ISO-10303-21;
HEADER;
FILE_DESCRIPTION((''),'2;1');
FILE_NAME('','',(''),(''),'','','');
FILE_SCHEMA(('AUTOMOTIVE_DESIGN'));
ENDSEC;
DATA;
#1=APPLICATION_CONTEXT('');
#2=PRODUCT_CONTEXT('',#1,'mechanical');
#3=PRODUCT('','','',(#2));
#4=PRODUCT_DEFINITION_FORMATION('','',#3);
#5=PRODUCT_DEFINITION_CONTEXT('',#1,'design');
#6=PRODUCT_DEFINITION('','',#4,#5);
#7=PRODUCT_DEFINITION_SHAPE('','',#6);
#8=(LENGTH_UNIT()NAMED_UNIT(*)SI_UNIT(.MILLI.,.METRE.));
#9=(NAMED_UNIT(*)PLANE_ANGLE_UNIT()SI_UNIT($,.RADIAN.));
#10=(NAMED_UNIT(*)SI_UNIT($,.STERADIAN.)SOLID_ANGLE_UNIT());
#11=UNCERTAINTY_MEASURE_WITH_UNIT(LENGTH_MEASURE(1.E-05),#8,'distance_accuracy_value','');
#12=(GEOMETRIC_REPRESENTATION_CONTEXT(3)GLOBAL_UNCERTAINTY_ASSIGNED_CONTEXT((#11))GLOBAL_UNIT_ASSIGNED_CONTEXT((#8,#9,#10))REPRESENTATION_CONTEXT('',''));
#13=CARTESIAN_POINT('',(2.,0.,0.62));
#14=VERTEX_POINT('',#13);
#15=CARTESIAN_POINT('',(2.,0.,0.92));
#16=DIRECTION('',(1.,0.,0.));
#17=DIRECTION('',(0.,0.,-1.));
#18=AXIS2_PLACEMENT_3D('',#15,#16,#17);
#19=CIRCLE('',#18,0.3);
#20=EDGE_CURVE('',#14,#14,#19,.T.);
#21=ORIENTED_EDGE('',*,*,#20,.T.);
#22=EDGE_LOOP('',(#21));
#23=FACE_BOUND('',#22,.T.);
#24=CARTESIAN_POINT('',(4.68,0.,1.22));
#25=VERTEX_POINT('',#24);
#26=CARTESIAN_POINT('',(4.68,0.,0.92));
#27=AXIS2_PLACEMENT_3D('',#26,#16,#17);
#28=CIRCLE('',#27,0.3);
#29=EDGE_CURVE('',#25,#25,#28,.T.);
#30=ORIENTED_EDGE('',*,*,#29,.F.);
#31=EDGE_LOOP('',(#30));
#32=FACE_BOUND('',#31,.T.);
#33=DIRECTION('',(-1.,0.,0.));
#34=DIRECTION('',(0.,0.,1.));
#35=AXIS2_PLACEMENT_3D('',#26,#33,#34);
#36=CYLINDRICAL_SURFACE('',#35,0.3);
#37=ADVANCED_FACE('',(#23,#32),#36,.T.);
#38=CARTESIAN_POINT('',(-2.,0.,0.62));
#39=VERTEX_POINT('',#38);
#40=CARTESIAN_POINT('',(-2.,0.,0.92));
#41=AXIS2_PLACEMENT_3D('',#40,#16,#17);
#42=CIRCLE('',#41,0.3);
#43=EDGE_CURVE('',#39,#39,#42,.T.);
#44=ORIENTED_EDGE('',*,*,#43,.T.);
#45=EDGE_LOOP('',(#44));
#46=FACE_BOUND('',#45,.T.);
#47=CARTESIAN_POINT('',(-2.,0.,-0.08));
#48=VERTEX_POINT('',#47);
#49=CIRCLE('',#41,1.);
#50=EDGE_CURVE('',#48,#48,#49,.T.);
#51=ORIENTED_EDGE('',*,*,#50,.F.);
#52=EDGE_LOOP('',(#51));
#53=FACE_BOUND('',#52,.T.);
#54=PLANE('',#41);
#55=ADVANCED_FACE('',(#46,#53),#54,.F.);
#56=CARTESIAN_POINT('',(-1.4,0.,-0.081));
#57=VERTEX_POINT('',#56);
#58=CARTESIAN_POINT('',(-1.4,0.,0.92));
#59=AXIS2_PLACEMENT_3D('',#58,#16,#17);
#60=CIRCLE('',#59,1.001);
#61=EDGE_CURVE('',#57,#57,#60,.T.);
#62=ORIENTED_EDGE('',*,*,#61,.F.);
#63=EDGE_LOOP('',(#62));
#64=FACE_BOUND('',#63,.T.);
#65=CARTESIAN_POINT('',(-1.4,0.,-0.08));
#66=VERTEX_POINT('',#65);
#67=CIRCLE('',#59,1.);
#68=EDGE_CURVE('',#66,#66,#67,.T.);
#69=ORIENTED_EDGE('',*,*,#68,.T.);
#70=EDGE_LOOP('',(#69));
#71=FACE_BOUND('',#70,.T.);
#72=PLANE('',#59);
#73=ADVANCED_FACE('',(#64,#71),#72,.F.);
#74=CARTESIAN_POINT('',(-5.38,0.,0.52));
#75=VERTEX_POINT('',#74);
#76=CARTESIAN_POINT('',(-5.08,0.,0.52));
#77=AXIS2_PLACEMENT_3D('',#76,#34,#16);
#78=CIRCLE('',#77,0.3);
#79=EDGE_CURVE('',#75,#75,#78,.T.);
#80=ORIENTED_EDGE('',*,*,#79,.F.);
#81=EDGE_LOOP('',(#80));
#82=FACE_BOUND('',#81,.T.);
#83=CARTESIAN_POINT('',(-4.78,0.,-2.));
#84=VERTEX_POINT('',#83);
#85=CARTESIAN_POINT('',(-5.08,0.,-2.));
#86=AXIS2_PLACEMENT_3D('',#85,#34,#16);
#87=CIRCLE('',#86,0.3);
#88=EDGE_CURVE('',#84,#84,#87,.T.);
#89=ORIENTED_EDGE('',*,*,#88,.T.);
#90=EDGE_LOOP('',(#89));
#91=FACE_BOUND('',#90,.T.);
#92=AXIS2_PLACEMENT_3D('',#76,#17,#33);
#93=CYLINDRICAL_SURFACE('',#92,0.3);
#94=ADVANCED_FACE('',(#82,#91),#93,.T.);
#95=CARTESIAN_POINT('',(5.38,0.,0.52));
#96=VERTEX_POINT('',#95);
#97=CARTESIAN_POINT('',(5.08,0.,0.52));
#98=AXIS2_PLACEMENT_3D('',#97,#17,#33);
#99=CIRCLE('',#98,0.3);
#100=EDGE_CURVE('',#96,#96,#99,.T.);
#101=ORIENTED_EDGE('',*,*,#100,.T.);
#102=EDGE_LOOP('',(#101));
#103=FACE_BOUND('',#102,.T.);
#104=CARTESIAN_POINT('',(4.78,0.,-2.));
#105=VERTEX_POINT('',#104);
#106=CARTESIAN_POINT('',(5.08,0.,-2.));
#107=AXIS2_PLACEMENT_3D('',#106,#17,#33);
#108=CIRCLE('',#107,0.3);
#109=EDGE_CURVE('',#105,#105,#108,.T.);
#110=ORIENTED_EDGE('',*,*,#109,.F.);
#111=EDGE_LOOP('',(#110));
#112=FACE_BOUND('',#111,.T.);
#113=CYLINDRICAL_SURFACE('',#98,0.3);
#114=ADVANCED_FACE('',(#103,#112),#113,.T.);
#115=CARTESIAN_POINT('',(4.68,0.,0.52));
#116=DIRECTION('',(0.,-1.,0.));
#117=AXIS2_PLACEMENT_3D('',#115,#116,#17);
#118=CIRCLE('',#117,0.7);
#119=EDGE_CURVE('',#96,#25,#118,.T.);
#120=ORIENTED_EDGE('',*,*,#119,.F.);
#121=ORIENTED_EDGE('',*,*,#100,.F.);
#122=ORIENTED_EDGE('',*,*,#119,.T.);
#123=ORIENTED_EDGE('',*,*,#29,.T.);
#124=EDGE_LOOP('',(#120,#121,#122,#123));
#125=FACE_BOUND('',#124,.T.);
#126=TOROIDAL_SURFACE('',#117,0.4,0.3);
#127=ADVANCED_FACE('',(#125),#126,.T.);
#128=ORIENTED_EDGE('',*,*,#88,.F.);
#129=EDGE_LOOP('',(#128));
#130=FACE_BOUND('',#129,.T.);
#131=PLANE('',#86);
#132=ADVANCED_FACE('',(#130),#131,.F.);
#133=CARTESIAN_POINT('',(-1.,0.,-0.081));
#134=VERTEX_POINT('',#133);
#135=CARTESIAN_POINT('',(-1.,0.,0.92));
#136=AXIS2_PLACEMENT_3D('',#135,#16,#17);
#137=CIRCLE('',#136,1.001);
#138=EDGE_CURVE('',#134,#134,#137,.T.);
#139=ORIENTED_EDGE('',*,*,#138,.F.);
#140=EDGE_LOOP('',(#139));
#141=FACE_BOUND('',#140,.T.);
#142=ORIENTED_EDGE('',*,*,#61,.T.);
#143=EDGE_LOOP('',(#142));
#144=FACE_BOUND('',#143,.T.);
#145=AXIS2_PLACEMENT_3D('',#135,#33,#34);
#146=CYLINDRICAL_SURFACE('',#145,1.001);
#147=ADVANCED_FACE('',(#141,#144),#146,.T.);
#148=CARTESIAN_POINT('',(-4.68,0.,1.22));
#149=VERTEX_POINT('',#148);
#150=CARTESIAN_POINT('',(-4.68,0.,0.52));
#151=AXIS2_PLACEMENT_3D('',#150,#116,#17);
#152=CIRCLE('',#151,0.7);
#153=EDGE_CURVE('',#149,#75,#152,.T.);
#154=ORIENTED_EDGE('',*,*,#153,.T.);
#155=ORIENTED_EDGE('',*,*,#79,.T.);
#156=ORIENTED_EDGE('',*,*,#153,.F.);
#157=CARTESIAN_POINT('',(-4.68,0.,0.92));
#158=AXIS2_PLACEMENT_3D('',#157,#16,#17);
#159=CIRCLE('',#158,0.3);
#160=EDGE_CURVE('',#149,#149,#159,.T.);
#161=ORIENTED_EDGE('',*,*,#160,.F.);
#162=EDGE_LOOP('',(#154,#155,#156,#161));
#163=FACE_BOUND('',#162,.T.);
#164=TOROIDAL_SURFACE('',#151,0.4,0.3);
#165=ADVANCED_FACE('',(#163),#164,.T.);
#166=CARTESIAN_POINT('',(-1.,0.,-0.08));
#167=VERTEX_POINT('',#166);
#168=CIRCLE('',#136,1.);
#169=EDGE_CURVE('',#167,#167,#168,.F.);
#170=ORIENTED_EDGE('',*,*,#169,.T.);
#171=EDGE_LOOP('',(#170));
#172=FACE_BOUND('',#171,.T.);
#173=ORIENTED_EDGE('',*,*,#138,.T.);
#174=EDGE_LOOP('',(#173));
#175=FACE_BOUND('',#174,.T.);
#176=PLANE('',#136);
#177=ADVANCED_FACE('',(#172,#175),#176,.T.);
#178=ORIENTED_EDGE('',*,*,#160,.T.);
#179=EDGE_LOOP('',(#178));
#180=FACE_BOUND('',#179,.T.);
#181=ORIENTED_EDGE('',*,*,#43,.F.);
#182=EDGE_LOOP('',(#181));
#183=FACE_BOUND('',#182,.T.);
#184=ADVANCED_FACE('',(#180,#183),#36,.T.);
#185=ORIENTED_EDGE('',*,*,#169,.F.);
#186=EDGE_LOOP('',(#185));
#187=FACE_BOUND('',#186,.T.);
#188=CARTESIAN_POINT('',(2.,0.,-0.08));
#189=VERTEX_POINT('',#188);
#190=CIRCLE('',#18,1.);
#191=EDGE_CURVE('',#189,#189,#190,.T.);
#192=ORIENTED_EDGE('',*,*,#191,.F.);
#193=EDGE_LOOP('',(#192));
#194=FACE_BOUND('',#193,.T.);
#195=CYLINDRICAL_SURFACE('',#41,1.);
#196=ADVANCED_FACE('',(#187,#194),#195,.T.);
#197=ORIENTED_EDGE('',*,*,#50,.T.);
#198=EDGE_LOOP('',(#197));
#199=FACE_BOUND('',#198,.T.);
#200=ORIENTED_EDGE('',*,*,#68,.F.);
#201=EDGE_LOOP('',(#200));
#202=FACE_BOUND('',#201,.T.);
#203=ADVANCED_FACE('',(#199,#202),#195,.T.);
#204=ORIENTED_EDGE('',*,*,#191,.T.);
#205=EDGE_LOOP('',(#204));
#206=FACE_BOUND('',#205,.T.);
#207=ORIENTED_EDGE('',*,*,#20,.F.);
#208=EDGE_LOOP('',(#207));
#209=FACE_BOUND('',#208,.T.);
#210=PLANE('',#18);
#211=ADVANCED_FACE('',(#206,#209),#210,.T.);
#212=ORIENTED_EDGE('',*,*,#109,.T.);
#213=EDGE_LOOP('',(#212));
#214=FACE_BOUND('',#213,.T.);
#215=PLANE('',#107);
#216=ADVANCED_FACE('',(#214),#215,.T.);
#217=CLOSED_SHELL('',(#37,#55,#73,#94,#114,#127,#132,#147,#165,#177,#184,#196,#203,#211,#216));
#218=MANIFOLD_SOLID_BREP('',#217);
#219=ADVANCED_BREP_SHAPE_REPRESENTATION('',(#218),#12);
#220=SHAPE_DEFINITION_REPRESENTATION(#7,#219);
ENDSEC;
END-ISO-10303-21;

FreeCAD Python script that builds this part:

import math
import FreeCAD as App
import Part
import Sketcher

V = App.Vector
Q = App.Units.Quantity

doc = App.newDocument("Part")
body = doc.addObject("PartDesign::Body", "Body")

sketch1 = body.newObject("Sketcher::SketchObject", "Sketch")
sketch1.AttachmentSupport = (doc.getObject("XY_Plane"), [""])
sketch1.MapMode = "FlatFace"
sketch1.AttachmentOffset = App.Placement(V(0, 0, -2), App.Rotation())
sketch1.addGeometry(Part.Circle(V(5.08, 0, 0), V(0, 0, 1), 0.3), False)
sketch1.addConstraint(Sketcher.Constraint("PointOnObject", 0, 3, -1))
sketch1.addConstraint(Sketcher.Constraint("Diameter", 0, Q("0.6 mm")))
sketch1.addConstraint(Sketcher.Constraint("DistanceX", -1, 1, 0, 3, Q("5.08 mm")))

sketch2 = body.newObject("Sketcher::SketchObject", "Sketch001")
sketch2.AttachmentSupport = (doc.getObject("XZ_Plane"), [""])
sketch2.MapMode = "FlatFace"
sketch2.addGeometry(Part.LineSegment(V(5.08, -2, 0), V(5.08, 0.52, 0)), False)
sketch2.addGeometry(Part.ArcOfCircle(Part.Circle(V(4.68, 0.52, 0), V(0, 0, 1), 0.4), math.radians(0), math.radians(90)), False)
sketch2.addGeometry(Part.LineSegment(V(4.68, 0.92, 0), V(-4.68, 0.92, 0)), False)
sketch2.addGeometry(Part.ArcOfCircle(Part.Circle(V(-4.68, 0.52, 0), V(0, 0, 1), 0.4), math.radians(90), math.radians(180)), False)
sketch2.addGeometry(Part.LineSegment(V(-5.08, 0.52, 0), V(-5.08, -2, 0)), False)
sketch2.addConstraint(Sketcher.Constraint("Tangent", 0, 2, 1, 1))
sketch2.addConstraint(Sketcher.Constraint("Tangent", 1, 2, 2, 1))
sketch2.addConstraint(Sketcher.Constraint("Tangent", 2, 2, 3, 1))
sketch2.addConstraint(Sketcher.Constraint("Tangent", 3, 2, 4, 1))
sketch2.addConstraint(Sketcher.Constraint("Vertical", 0))
sketch2.addConstraint(Sketcher.Constraint("Horizontal", 2))
sketch2.addConstraint(Sketcher.Constraint("Vertical", 4))
sketch2.addConstraint(Sketcher.Constraint("Equal", 1, 3))
sketch2.addConstraint(Sketcher.Constraint("Symmetric", 0, 1, 4, 2, -2))
sketch2.addConstraint(Sketcher.Constraint("Radius", 1, Q("0.4 mm")))
sketch2.addConstraint(Sketcher.Constraint("DistanceY", 0, 1, -1, 1, Q("2 mm")))
sketch2.addConstraint(Sketcher.Constraint("DistanceX", 2, 2, 2, 1, Q("9.36 mm")))
sketch2.addConstraint(Sketcher.Constraint("DistanceY", 0, 1, 0, 2, Q("2.52 mm")))
doc.recompute()

additivepipe = body.newObject("PartDesign::AdditivePipe", "AdditivePipe")
additivepipe.Profile = sketch1
additivepipe.Spine = (sketch2, ["Edge1", "Edge2", "Edge3", "Edge4", "Edge5"])

sketch3 = body.newObject("Sketcher::SketchObject", "Sketch002")
sketch3.AttachmentSupport = (doc.getObject("YZ_Plane"), [""])
sketch3.MapMode = "FlatFace"
sketch3.addGeometry(Part.Circle(V(0, 0.92, 0), V(0, 0, 1), 1), False)
sketch3.addConstraint(Sketcher.Constraint("PointOnObject", 0, 3, -2))
sketch3.addConstraint(Sketcher.Constraint("Diameter", 0, Q("2 mm")))
sketch3.addConstraint(Sketcher.Constraint("DistanceY", -1, 1, 0, 3, Q("0.92 mm")))
pad1 = body.newObject("PartDesign::Pad", "Pad")
pad1.Profile = sketch3
pad1.Length = 4
pad1.Midplane = True

sketch4 = body.newObject("Sketcher::SketchObject", "Sketch003")
sketch4.AttachmentSupport = (doc.getObject("YZ_Plane"), [""])
sketch4.MapMode = "FlatFace"
sketch4.AttachmentOffset = App.Placement(V(0, 0, -1.2), App.Rotation())
sketch4.addGeometry(Part.Circle(V(0, 0.92, 0), V(0, 0, 1), 1.001), False)
sketch4.addGeometry(Part.Circle(V(0, 0.92, 0), V(0, 0, 1), 1), False)
sketch4.addConstraint(Sketcher.Constraint("Coincident", 1, 3, 0, 3))
sketch4.addConstraint(Sketcher.Constraint("PointOnObject", 0, 3, -2))
sketch4.addConstraint(Sketcher.Constraint("Diameter", 1, Q("2 mm")))
sketch4.addConstraint(Sketcher.Constraint("Diameter", 0, Q("2.002 mm")))
sketch4.addConstraint(Sketcher.Constraint("DistanceY", -1, 1, 0, 3, Q("0.92 mm")))
pad2 = body.newObject("PartDesign::Pad", "Pad001")
pad2.Profile = sketch4
pad2.Length = 0.4
pad2.Midplane = True

doc.recompute()
